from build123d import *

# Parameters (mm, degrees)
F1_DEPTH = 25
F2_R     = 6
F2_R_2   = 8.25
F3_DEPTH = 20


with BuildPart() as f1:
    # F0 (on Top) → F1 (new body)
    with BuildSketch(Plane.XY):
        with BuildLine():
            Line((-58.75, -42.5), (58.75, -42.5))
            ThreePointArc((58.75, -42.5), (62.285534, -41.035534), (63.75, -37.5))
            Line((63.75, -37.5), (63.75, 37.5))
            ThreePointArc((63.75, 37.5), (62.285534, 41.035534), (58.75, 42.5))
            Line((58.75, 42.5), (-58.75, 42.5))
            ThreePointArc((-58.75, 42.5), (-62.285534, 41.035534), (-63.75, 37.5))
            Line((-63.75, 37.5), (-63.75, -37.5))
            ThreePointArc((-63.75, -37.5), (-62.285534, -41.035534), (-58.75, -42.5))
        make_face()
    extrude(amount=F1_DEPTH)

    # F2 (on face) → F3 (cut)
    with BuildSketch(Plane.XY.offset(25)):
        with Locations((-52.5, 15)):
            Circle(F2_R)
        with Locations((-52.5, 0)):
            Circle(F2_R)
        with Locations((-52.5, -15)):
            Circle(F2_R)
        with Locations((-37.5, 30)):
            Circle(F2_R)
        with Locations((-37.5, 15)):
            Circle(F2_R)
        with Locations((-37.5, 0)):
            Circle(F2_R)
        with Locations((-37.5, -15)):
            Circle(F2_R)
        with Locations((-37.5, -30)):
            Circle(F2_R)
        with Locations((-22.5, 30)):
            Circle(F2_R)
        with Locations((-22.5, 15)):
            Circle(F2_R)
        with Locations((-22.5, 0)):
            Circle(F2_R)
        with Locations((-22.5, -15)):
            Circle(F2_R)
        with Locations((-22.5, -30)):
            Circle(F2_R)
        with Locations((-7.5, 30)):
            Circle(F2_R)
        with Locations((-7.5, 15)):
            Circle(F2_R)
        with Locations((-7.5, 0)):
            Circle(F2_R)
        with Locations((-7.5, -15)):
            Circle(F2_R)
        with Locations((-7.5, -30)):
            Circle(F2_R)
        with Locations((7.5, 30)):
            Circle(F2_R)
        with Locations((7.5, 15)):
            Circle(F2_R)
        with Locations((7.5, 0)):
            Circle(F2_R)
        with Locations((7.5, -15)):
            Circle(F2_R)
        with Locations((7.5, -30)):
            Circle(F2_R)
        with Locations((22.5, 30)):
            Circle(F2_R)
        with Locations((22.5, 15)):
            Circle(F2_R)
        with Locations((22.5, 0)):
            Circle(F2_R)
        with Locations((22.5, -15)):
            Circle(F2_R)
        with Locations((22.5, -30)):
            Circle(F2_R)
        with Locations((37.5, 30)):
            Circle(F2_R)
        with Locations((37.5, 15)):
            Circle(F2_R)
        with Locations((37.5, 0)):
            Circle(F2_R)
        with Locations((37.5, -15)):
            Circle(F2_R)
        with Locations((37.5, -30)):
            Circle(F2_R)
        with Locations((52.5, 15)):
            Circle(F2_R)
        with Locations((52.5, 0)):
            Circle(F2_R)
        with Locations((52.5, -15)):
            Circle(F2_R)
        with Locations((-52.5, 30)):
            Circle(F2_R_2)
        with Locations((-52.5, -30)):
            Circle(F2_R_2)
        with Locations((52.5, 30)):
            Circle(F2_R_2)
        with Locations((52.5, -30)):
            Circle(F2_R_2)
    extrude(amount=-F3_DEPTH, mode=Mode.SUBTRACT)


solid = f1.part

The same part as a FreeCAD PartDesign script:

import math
import FreeCAD as App
import Part
import Sketcher

V = App.Vector
Q = App.Units.Quantity

doc = App.newDocument("Part")
params = doc.addObject("Spreadsheet::Sheet", "Params")
for row, (alias, value) in enumerate([
    ("sketch1_radius", "5 mm"),
    ("sketch1_height", "75 mm"),
    ("sketch1_width", "117.5 mm"),
    ("pad1_length", "25 mm"),
    ("sketch2_diameter", "12 mm"),
    ("sketch2_diameter2", "16.5 mm"),
    ("pocket1_length", "20 mm"),
], start=1):
    params.set(f"A{row}", alias)
    params.set(f"B{row}", "=" + value)
    params.setAlias(f"B{row}", alias)

body = doc.addObject("PartDesign::Body", "Body")

# Sketch on XY plane
sketch1 = body.newObject("Sketcher::SketchObject", "Sketch")
sketch1.AttachmentSupport = (doc.getObject("XY_Plane"), [""])
sketch1.MapMode = "FlatFace"
sketch1.addGeometry(Part.LineSegment(V(-58.8, -42.5, 0), V(58.8, -42.5, 0)), False)
sketch1.addGeometry(Part.ArcOfCircle(Part.Circle(V(58.8, -37.5, 0), V(0, 0, 1), 5), math.radians(-90), math.radians(0)), False)
sketch1.addGeometry(Part.LineSegment(V(63.8, -37.5, 0), V(63.8, 37.5, 0)), False)
sketch1.addGeometry(Part.ArcOfCircle(Part.Circle(V(58.8, 37.5, 0), V(0, 0, 1), 5), math.radians(0), math.radians(90)), False)
sketch1.addGeometry(Part.LineSegment(V(58.8, 42.5, 0), V(-58.8, 42.5, 0)), False)
sketch1.addGeometry(Part.ArcOfCircle(Part.Circle(V(-58.8, 37.5, 0), V(0, 0, 1), 5), math.radians(90), math.radians(180)), False)
sketch1.addGeometry(Part.LineSegment(V(-63.8, 37.5, 0), V(-63.8, -37.5, 0)), False)
sketch1.addGeometry(Part.ArcOfCircle(Part.Circle(V(-58.8, -37.5, 0), V(0, 0, 1), 5), math.radians(180), math.radians(270)), False)
sketch1.addConstraint(Sketcher.Constraint("Tangent", 0, 2, 1, 1))
sketch1.addConstraint(Sketcher.Constraint("Tangent", 1, 2, 2, 1))
sketch1.addConstraint(Sketcher.Constraint("Tangent", 2, 2, 3, 1))
sketch1.addConstraint(Sketcher.Constraint("Tangent", 3, 2, 4, 1))
sketch1.addConstraint(Sketcher.Constraint("Tangent", 4, 2, 5, 1))
sketch1.addConstraint(Sketcher.Constraint("Tangent", 5, 2, 6, 1))
sketch1.addConstraint(Sketcher.Constraint("Tangent", 6, 2, 7, 1))
sketch1.addConstraint(Sketcher.Constraint("Tangent", 7, 2, 0, 1))
sketch1.addConstraint(Sketcher.Constraint("Horizontal", 0))
sketch1.addConstraint(Sketcher.Constraint("Vertical", 2))
sketch1.addConstraint(Sketcher.Constraint("Horizontal", 4))
sketch1.addConstraint(Sketcher.Constraint("Vertical", 6))
sketch1.addConstraint(Sketcher.Constraint("Equal", 1, 3))
sketch1.addConstraint(Sketcher.Constraint("Equal", 3, 5))
sketch1.addConstraint(Sketcher.Constraint("Equal", 5, 7))
sketch1.addConstraint(Sketcher.Constraint("Symmetric", 1, 3, 5, 3, -1, 1))
sketch1.addConstraint(Sketcher.Constraint("Radius", 1, Q("5 mm")))
sketch1.addConstraint(Sketcher.Constraint("DistanceY", 2, 1, 2, 2, Q("75 mm")))
sketch1.addConstraint(Sketcher.Constraint("DistanceX", 0, 1, 0, 2, Q("117.5 mm")))
sketch1.setExpression("Constraints[16]", "Params.sketch1_radius")
sketch1.setExpression("Constraints[17]", "Params.sketch1_height")
sketch1.setExpression("Constraints[18]", "Params.sketch1_width")
pad1 = body.newObject("PartDesign::Pad", "Pad")
pad1.Profile = sketch1
pad1.setExpression("Length", "Params.pad1_length")

# Sketch on XY plane
sketch2 = body.newObject("Sketcher::SketchObject", "Sketch001")
sketch2.AttachmentSupport = (doc.getObject("XY_Plane"), [""])
sketch2.MapMode = "FlatFace"
sketch2.AttachmentOffset = App.Placement(V(0, 0, 25), App.Rotation())
sketch2.addGeometry(Part.Circle(V(-52, 15, 0), V(0, 0, 1), 6), False)
sketch2.addGeometry(Part.Circle(V(-52, 0, 0), V(0, 0, 1), 6), False)
sketch2.addGeometry(Part.Circle(V(-52, -15, 0), V(0, 0, 1), 6), False)
sketch2.addGeometry(Part.Circle(V(-38, 30, 0), V(0, 0, 1), 6), False)
sketch2.addGeometry(Part.Circle(V(-38, 15, 0), V(0, 0, 1), 6), False)
sketch2.addGeometry(Part.Circle(V(-38, 0, 0), V(0, 0, 1), 6), False)
sketch2.addGeometry(Part.Circle(V(-38, -15, 0), V(0, 0, 1), 6), False)
sketch2.addGeometry(Part.Circle(V(-38, -30, 0), V(0, 0, 1), 6), False)
sketch2.addGeometry(Part.Circle(V(-22, 30, 0), V(0, 0, 1), 6), False)
sketch2.addGeometry(Part.Circle(V(-22, 15, 0), V(0, 0, 1), 6), False)
sketch2.addGeometry(Part.Circle(V(-22, 0, 0), V(0, 0, 1), 6), False)
sketch2.addGeometry(Part.Circle(V(-22, -15, 0), V(0, 0, 1), 6), False)
sketch2.addGeometry(Part.Circle(V(-22, -30, 0), V(0, 0, 1), 6), False)
sketch2.addGeometry(Part.Circle(V(-8, 30, 0), V(0, 0, 1), 6), False)
sketch2.addGeometry(Part.Circle(V(-8, 15, 0), V(0, 0, 1), 6), False)
sketch2.addGeometry(Part.Circle(V(-8, 0, 0), V(0, 0, 1), 6), False)
sketch2.addGeometry(Part.Circle(V(-8, -15, 0), V(0, 0, 1), 6), False)
sketch2.addGeometry(Part.Circle(V(-8, -30, 0), V(0, 0, 1), 6), False)
sketch2.addGeometry(Part.Circle(V(8, 30, 0), V(0, 0, 1), 6), False)
sketch2.addGeometry(Part.Circle(V(8, 15, 0), V(0, 0, 1), 6), False)
sketch2.addGeometry(Part.Circle(V(8, 0, 0), V(0, 0, 1), 6), False)
sketch2.addGeometry(Part.Circle(V(8, -15, 0), V(0, 0, 1), 6), False)
sketch2.addGeometry(Part.Circle(V(8, -30, 0), V(0, 0, 1), 6), False)
sketch2.addGeometry(Part.Circle(V(22, 30, 0), V(0, 0, 1), 6), False)
sketch2.addGeometry(Part.Circle(V(22, 15, 0), V(0, 0, 1), 6), False)
sketch2.addGeometry(Part.Circle(V(22, 0, 0), V(0, 0, 1), 6), False)
sketch2.addGeometry(Part.Circle(V(22, -15, 0), V(0, 0, 1), 6), False)
sketch2.addGeometry(Part.Circle(V(22, -30, 0), V(0, 0, 1), 6), False)
sketch2.addGeometry(Part.Circle(V(38, 30, 0), V(0, 0, 1), 6), False)
sketch2.addGeometry(Part.Circle(V(38, 15, 0), V(0, 0, 1), 6), False)
sketch2.addGeometry(Part.Circle(V(38, 0, 0), V(0, 0, 1), 6), False)
sketch2.addGeometry(Part.Circle(V(38, -15, 0), V(0, 0, 1), 6), False)
sketch2.addGeometry(Part.Circle(V(38, -30, 0), V(0, 0, 1), 6), False)
sketch2.addGeometry(Part.Circle(V(52, 15, 0), V(0, 0, 1), 6), False)
sketch2.addGeometry(Part.Circle(V(52, 0, 0), V(0, 0, 1), 6), False)
sketch2.addGeometry(Part.Circle(V(52, -15, 0), V(0, 0, 1), 6), False)
sketch2.addGeometry(Part.Circle(V(-52, 30, 0), V(0, 0, 1), 8), False)
sketch2.addGeometry(Part.Circle(V(-52, -30, 0), V(0, 0, 1), 8), False)
sketch2.addGeometry(Part.Circle(V(52, 30, 0), V(0, 0, 1), 8), False)
sketch2.addGeometry(Part.Circle(V(52, -30, 0), V(0, 0, 1), 8), False)
sketch2.addConstraint(Sketcher.Constraint("Equal", 0, 1))
sketch2.addConstraint(Sketcher.Constraint("Equal", 1, 2))
sketch2.addConstraint(Sketcher.Constraint("Equal", 2, 3))
sketch2.addConstraint(Sketcher.Constraint("Equal", 3, 4))
sketch2.addConstraint(Sketcher.Constraint("Equal", 4, 5))
sketch2.addConstraint(Sketcher.Constraint("Equal", 5, 6))
sketch2.addConstraint(Sketcher.Constraint("Equal", 6, 7))
sketch2.addConstraint(Sketcher.Constraint("Equal", 7, 8))
sketch2.addConstraint(Sketcher.Constraint("Equal", 8, 9))
sketch2.addConstraint(Sketcher.Constraint("Equal", 9, 10))
sketch2.addConstraint(Sketcher.Constraint("Equal", 10, 11))
sketch2.addConstraint(Sketcher.Constraint("Equal", 11, 12))
sketch2.addConstraint(Sketcher.Constraint("Equal", 12, 13))
sketch2.addConstraint(Sketcher.Constraint("Equal", 13, 14))
sketch2.addConstraint(Sketcher.Constraint("Equal", 14, 15))
sketch2.addConstraint(Sketcher.Constraint("Equal", 15, 16))
sketch2.addConstraint(Sketcher.Constraint("Equal", 16, 17))
sketch2.addConstraint(Sketcher.Constraint("Equal", 17, 18))
sketch2.addConstraint(Sketcher.Constraint("Equal", 18, 19))
sketch2.addConstraint(Sketcher.Constraint("Equal", 19, 20))
sketch2.addConstraint(Sketcher.Constraint("Equal", 20, 21))
sketch2.addConstraint(Sketcher.Constraint("Equal", 21, 22))
sketch2.addConstraint(Sketcher.Constraint("Equal", 22, 23))
sketch2.addConstraint(Sketcher.Constraint("Equal", 23, 24))
sketch2.addConstraint(Sketcher.Constraint("Equal", 24, 25))
sketch2.addConstraint(Sketcher.Constraint("Equal", 25, 26))
sketch2.addConstraint(Sketcher.Constraint("Equal", 26, 27))
sketch2.addConstraint(Sketcher.Constraint("Equal", 27, 28))
sketch2.addConstraint(Sketcher.Constraint("Equal", 28, 29))
sketch2.addConstraint(Sketcher.Constraint("Equal", 29, 30))
sketch2.addConstraint(Sketcher.Constraint("Equal", 30, 31))
sketch2.addConstraint(Sketcher.Constraint("Equal", 31, 32))
sketch2.addConstraint(Sketcher.Constraint("Equal", 32, 33))
sketch2.addConstraint(Sketcher.Constraint("Equal", 33, 34))
sketch2.addConstraint(Sketcher.Constraint("Equal", 34, 35))
sketch2.addConstraint(Sketcher.Constraint("Equal", 36, 37))
sketch2.addConstraint(Sketcher.Constraint("Equal", 37, 38))
sketch2.addConstraint(Sketcher.Constraint("Equal", 38, 39))
sketch2.addConstraint(Sketcher.Constraint("Symmetric", 17, 3, 18, 3, -1, 1))
sketch2.addConstraint(Sketcher.Constraint("Symmetric", 16, 3, 19, 3, -1, 1))
sketch2.addConstraint(Sketcher.Constraint("Symmetric", 15, 3, 20, 3, -1, 1))
sketch2.addConstraint(Sketcher.Constraint("Symmetric", 14, 3, 21, 3, -1, 1))
sketch2.addConstraint(Sketcher.Constraint("Symmetric", 13, 3, 22, 3, -1, 1))
sketch2.addConstraint(Sketcher.Constraint("Symmetric", 12, 3, 23, 3, -1, 1))
sketch2.addConstraint(Sketcher.Constraint("Symmetric", 11, 3, 24, 3, -1, 1))
sketch2.addConstraint(Sketcher.Constraint("Symmetric", 10, 3, 25, 3, -1, 1))
sketch2.addConstraint(Sketcher.Constraint("Symmetric", 9, 3, 26, 3, -1, 1))
sketch2.addConstraint(Sketcher.Constraint("Symmetric", 8, 3, 27, 3, -1, 1))
sketch2.addConstraint(Sketcher.Constraint("Symmetric", 7, 3, 28, 3, -1, 1))
sketch2.addConstraint(Sketcher.Constraint("Symmetric", 6, 3, 29, 3, -1, 1))
sketch2.addConstraint(Sketcher.Constraint("Symmetric", 5, 3, 30, 3, -1, 1))
sketch2.addConstraint(Sketcher.Constraint("Symmetric", 4, 3, 31, 3, -1, 1))
sketch2.addConstraint(Sketcher.Constraint("Symmetric", 3, 3, 32, 3, -1, 1))
sketch2.addConstraint(Sketcher.Constraint("Symmetric", 2, 3, 33, 3, -1, 1))
sketch2.addConstraint(Sketcher.Constraint("Symmetric", 1, 3, 34, 3, -1, 1))
sketch2.addConstraint(Sketcher.Constraint("Symmetric", 0, 3, 35, 3, -1, 1))
sketch2.addConstraint(Sketcher.Constraint("Symmetric", 37, 3, 38, 3, -1, 1))
sketch2.addConstraint(Sketcher.Constraint("Symmetric", 36, 3, 39, 3, -1, 1))
sketch2.addConstraint(Sketcher.Constraint("Symmetric", 13, 3, 18, 3, -2))
sketch2.addConstraint(Sketcher.Constraint("Symmetric", 14, 3, 19, 3, -2))
sketch2.addConstraint(Sketcher.Constraint("Symmetric", 8, 3, 23, 3, -2))
sketch2.addConstraint(Sketcher.Constraint("Symmetric", 9, 3, 24, 3, -2))
sketch2.addConstraint(Sketcher.Constraint("Symmetric", 3, 3, 28, 3, -2))
sketch2.addConstraint(Sketcher.Constraint("Symmetric", 4, 3, 29, 3, -2))
sketch2.addConstraint(Sketcher.Constraint("Symmetric", 0, 3, 33, 3, -2))
sketch2.addConstraint(Sketcher.Constraint("Symmetric", 36, 3, 38, 3, -2))
sketch2.addConstraint(Sketcher.Constraint("PointOnObject", 1, 3, -1))
sketch2.addConstraint(Sketcher.Constraint("PointOnObject", 5, 3, -1))
sketch2.addConstraint(Sketcher.Constraint("PointOnObject", 10, 3, -1))
sketch2.addConstraint(Sketcher.Constraint("PointOnObject", 15, 3, -1))
sketch2.addConstraint(Sketcher.Constraint("Horizontal", 0, 3, 4, 3))
sketch2.addConstraint(Sketcher.Constraint("Horizontal", 3, 3, 8, 3))
sketch2.addConstraint(Sketcher.Constraint("Horizontal", 4, 3, 9, 3))
sketch2.addConstraint(Sketcher.Constraint("Horizontal", 8, 3, 13, 3))
sketch2.addConstraint(Sketcher.Constraint("Horizontal", 9, 3, 14, 3))
sketch2.addConstraint(Sketcher.Constraint("Horizontal", 28, 3, 36, 3))
sketch2.addConstraint(Sketcher.Constraint("Vertical", 0, 3, 1, 3))
sketch2.addConstraint(Sketcher.Constraint("Vertical", 3, 3, 4, 3))
sketch2.addConstraint(Sketcher.Constraint("Vertical", 4, 3, 5, 3))
sketch2.addConstraint(Sketcher.Constraint("Vertical", 8, 3, 9, 3))
sketch2.addConstraint(Sketcher.Constraint("Vertical", 9, 3, 10, 3))
sketch2.addConstraint(Sketcher.Constraint("Vertical", 13, 3, 14, 3))
sketch2.addConstraint(Sketcher.Constraint("Vertical", 14, 3, 15, 3))
sketch2.addConstraint(Sketcher.Constraint("Vertical", 2, 3, 36, 3))
sketch2.addConstraint(Sketcher.Constraint("Diameter", 0, Q("12 mm")))
sketch2.addConstraint(Sketcher.Constraint("Diameter", 36, Q("16.5 mm")))
sketch2.addConstraint(Sketcher.Constraint("DistanceY", -1, 1, 0, 3, Q("15 mm")))
sketch2.addConstraint(Sketcher.Constraint("DistanceY", -1, 1, 3, 3, Q("30 mm")))
sketch2.addConstraint(Sketcher.Constraint("DistanceX", 0, 3, 3, 3, Q("15 mm")))
sketch2.addConstraint(Sketcher.Constraint("DistanceX", 3, 3, 8, 3, Q("15 mm")))
sketch2.addConstraint(Sketcher.Constraint("DistanceX", 8, 3, 13, 3, Q("15 mm")))
sketch2.addConstraint(Sketcher.Constraint("DistanceX", 13, 3, 18, 3, Q("15 mm")))
sketch2.setExpression("Constraints[84]", "Params.sketch2_diameter")
sketch2.setExpression("Constraints[85]", "Params.sketch2_diameter2")
pocket1 = body.newObject("PartDesign::Pocket", "Pocket")
pocket1.Profile = sketch2
pocket1.setExpression("Length", "Params.pocket1_length")

doc.recompute()
